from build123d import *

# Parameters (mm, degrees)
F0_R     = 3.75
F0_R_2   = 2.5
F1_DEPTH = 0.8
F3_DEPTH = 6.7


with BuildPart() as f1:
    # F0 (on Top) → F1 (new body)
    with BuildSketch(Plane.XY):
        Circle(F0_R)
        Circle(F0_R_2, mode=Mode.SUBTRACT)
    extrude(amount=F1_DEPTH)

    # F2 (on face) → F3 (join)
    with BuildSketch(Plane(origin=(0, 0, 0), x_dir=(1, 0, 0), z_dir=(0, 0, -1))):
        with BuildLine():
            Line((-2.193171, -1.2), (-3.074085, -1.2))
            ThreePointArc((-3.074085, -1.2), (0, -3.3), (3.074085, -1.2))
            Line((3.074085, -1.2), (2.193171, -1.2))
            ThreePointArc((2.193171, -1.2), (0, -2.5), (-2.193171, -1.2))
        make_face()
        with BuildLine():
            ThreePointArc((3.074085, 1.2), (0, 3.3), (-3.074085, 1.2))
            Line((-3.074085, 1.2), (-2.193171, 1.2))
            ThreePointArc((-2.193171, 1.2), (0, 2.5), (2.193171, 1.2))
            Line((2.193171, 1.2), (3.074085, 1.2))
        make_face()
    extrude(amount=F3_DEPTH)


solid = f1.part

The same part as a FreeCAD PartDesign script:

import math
import FreeCAD as App
import Part
import Sketcher
from FreeCAD import Vector
Q = App.Units.Quantity

doc = App.newDocument("Part")
params = doc.addObject("Spreadsheet::Sheet", "Params")
for row, (alias, value) in enumerate([
    ("sketch1_diameter", "5 mm"),
    ("sketch1_diameter2", "7.5 mm"),
    ("pad1_length", "0.8 mm"),
    ("sketch2_radius", "3.3 mm"),
    ("sketch2_radius2", "2.5 mm"),
    ("pad2_length", "6.7 mm"),
], start=1):
    params.set(f"A{row}", alias)
    params.set(f"B{row}", "=" + value)
    params.setAlias(f"B{row}", alias)

body = doc.addObject("PartDesign::Body", "Body")

# Sketch on XY plane
sketch1 = doc.addObject("Sketcher::SketchObject", "Sketch")
body.addObject(sketch1)
sketch1.AttachmentSupport = (doc.XY_Plane, [""])
sketch1.MapMode = "FlatFace"
sketch1.addGeometry([
    Part.Circle(Vector(0, 0, 0), Vector(0, 0, 1), 3.8),
    Part.Circle(Vector(0, 0, 0), Vector(0, 0, 1), 2.5),
], False)
sketch1.addConstraint([
    Sketcher.Constraint("Coincident", 0, 3, -1, 1),
    Sketcher.Constraint("Coincident", 1, 3, -1, 1),
    Sketcher.Constraint("Diameter", 1, Q("5 mm")),
    Sketcher.Constraint("Diameter", 0, Q("7.5 mm")),
])
sketch1.setExpression("Constraints[2]", "Params.sketch1_diameter")
sketch1.setExpression("Constraints[3]", "Params.sketch1_diameter2")
pad1 = doc.addObject("PartDesign::Pad", "Pad")
body.addObject(pad1)
pad1.Profile = sketch1
pad1.setExpression("Length", "Params.pad1_length")

# Sketch on XY plane
sketch2 = doc.addObject("Sketcher::SketchObject", "Sketch001")
body.addObject(sketch2)
sketch2.AttachmentSupport = (doc.XY_Plane, [""])
sketch2.MapMode = "FlatFace"
sketch2.addGeometry([
    Part.LineSegment(Vector(-2.2, 1.2, 0), Vector(-3.1, 1.2, 0)),  # 0
    Part.ArcOfCircle(Part.Circle(Vector(0, 0, 0), Vector(0, 0, 1), 3.3), math.radians(21), math.radians(159)),  # 1
    Part.LineSegment(Vector(3.1, 1.2, 0), Vector(2.2, 1.2, 0)),  # 2
    Part.ArcOfCircle(Part.Circle(Vector(0, 0, 0), Vector(0, 0, 1), 2.5), math.radians(29), math.radians(151)),  # 3
    Part.ArcOfCircle(Part.Circle(Vector(0, 0, 0), Vector(0, 0, 1), 3.3), math.radians(-159), math.radians(-21)),  # 4
    Part.LineSegment(Vector(-3.1, -1.2, 0), Vector(-2.2, -1.2, 0)),  # 5
    Part.ArcOfCircle(Part.Circle(Vector(0, 0, 0), Vector(0, 0, 1), 2.5), math.radians(-151), math.radians(-29)),  # 6
    Part.LineSegment(Vector(2.2, -1.2, 0), Vector(3.1, -1.2, 0)),  # 7
], False)
sketch2.addConstraint([
    Sketcher.Constraint("Coincident", 0, 2, 1, 2),
    Sketcher.Constraint("Coincident", 1, 1, 2, 1),
    Sketcher.Constraint("Coincident", 2, 2, 3, 1),
    Sketcher.Constraint("Coincident", 3, 2, 0, 1),
    Sketcher.Constraint("Coincident", 4, 1, 5, 1),
    Sketcher.Constraint("Coincident", 5, 2, 6, 1),
    Sketcher.Constraint("Coincident", 6, 2, 7, 1),
    Sketcher.Constraint("Coincident", 7, 2, 4, 2),
    Sketcher.Constraint("Horizontal", 0),
    Sketcher.Constraint("Horizontal", 2),
    Sketcher.Constraint("Horizontal", 5),
    Sketcher.Constraint("Horizontal", 7),
    Sketcher.Constraint("Coincident", 1, 3, -1, 1),
    Sketcher.Constraint("Coincident", 3, 3, -1, 1),
    Sketcher.Constraint("Coincident", 4, 3, -1, 1),
    Sketcher.Constraint("Coincident", 6, 3, -1, 1),
    Sketcher.Constraint("Equal", 1, 4),
    Sketcher.Constraint("Equal", 3, 6),
    Sketcher.Constraint("Horizontal", 0, 2, 1, 1),
    Sketcher.Constraint("Horizontal", 5, 2, 6, 2),
    Sketcher.Constraint("Vertical", 0, 2, 4, 1),
    Sketcher.Constraint("Radius", 1, Q("3.3 mm")),
    Sketcher.Constraint("Radius", 3, Q("2.5 mm")),
    Sketcher.Constraint("DistanceY", -1, 1, 0, 2, Q("1.2 mm")),
])
sketch2.setExpression("Constraints[21]", "Params.sketch2_radius")
sketch2.setExpression("Constraints[22]", "Params.sketch2_radius2")
pad2 = doc.addObject("PartDesign::Pad", "Pad001")
body.addObject(pad2)
pad2.Profile = sketch2
pad2.setExpression("Length", "Params.pad2_length")
pad2.Reversed = True

doc.recompute()
